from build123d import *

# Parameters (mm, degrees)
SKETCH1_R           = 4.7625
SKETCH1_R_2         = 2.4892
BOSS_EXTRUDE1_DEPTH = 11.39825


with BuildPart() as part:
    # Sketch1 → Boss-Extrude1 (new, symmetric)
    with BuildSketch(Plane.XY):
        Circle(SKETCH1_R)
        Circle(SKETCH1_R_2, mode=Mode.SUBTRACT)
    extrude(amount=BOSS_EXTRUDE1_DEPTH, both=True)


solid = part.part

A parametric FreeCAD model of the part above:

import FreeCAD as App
import Part
import Sketcher
from FreeCAD import Vector
Q = App.Units.Quantity

doc = App.newDocument("Part")
body = doc.addObject("PartDesign::Body", "Body")

sketch1 = body.newObject("Sketcher::SketchObject", "Sketch")
sketch1.AttachmentSupport = (doc.getObject("XY_Plane"), [""])
sketch1.MapMode = "FlatFace"
sketch1.addGeometry(Part.Circle(Vector(0, 0, 0), Vector(0, 0, 1), 4.8), False)
sketch1.addGeometry(Part.Circle(Vector(0, 0, 0), Vector(0, 0, 1), 2.5), False)
sketch1.addConstraint(Sketcher.Constraint("Coincident", 0, 3, -1, 1))
sketch1.addConstraint(Sketcher.Constraint("Coincident", 1, 3, -1, 1))
sketch1.addConstraint(Sketcher.Constraint("Diameter", 0, Q("0.375 in")))
sketch1.addConstraint(Sketcher.Constraint("Diameter", 1, Q("0.196 in")))
pad1 = body.newObject("PartDesign::Pad", "Pad")
pad1.Profile = sketch1
pad1.Length = Q("0.8975 in")
pad1.Midplane = True

doc.recompute()
